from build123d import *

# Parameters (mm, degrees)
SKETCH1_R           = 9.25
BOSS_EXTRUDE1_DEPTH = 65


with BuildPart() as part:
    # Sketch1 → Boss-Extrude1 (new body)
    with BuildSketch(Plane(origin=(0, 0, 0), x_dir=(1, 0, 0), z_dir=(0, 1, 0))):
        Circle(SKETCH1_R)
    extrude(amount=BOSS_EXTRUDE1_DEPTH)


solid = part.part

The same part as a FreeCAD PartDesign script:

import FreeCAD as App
import Part
import Sketcher
from FreeCAD import Vector
Q = App.Units.Quantity

doc = App.newDocument("Part")
params = doc.addObject("Spreadsheet::Sheet", "Params")
for row, (alias, value) in enumerate([
    ("sketch1_diameter", "18.5 mm"),
    ("pad1_length", "65 mm"),
], start=1):
    params.set(f"A{row}", alias)
    params.set(f"B{row}", "=" + value)
    params.setAlias(f"B{row}", alias)

body = doc.addObject("PartDesign::Body", "Body")

# Sketch on XZ plane
sketch1 = body.newObject("Sketcher::SketchObject", "Sketch")
sketch1.AttachmentSupport = (doc.getObject("XZ_Plane"), [""])
sketch1.MapMode = "FlatFace"
sketch1.addGeometry(Part.Circle(Vector(0, 0, 0), Vector(0, 0, 1), 9), False)
sketch1.addConstraint([
    Sketcher.Constraint("Coincident", 0, 3, -1, 1),
    Sketcher.Constraint("Diameter", 0, Q("18.5 mm")),
])
sketch1.setExpression("Constraints[1]", "Params.sketch1_diameter")
pad1 = body.newObject("PartDesign::Pad", "Pad")
pad1.Profile = sketch1
pad1.setExpression("Length", "Params.pad1_length")
pad1.Reversed = True

doc.recompute()
